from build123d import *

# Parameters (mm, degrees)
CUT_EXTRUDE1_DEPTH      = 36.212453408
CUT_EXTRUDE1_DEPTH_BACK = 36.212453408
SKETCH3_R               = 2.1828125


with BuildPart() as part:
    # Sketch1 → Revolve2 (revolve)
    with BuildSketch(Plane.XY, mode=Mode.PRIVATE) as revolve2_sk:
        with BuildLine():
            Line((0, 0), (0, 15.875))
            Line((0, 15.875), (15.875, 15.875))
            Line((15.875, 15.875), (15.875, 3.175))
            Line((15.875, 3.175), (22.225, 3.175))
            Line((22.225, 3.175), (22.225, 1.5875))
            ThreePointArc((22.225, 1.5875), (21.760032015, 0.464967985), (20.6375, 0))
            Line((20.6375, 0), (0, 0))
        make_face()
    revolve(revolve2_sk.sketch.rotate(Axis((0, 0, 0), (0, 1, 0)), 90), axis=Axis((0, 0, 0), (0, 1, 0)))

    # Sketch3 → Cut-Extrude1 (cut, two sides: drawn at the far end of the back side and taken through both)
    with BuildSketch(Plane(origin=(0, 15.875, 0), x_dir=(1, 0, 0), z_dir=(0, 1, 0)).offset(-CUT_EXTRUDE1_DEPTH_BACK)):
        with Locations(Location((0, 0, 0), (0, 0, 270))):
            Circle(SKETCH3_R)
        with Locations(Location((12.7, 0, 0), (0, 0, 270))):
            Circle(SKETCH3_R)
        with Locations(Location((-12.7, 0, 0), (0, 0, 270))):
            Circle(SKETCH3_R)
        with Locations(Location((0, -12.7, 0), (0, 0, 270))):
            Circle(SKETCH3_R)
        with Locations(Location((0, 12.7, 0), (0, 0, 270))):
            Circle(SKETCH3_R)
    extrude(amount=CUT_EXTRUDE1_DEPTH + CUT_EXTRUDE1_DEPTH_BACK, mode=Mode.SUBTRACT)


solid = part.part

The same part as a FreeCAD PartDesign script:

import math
import FreeCAD as App
import Part
import Sketcher
Q = App.Units.Quantity

doc = App.newDocument("Part")
body = doc.addObject("PartDesign::Body", "Body")

sketch1 = body.newObject("Sketcher::SketchObject", "Sketch")
sketch1.AttachmentSupport = (doc.getObject("XY_Plane"), [""])
sketch1.MapMode = "FlatFace"
sketch1.addGeometry(Part.LineSegment(App.Vector(0, 15.9, 0), App.Vector(0, 0, 0)), False)
sketch1.addGeometry(Part.LineSegment(App.Vector(0, 0, 0), App.Vector(20.6, 0, 0)), False)
sketch1.addGeometry(Part.ArcOfCircle(Part.Circle(App.Vector(20.6, 1.6, 0), App.Vector(0, 0, 1), 1.6), math.radians(-90), math.radians(0)), False)
sketch1.addGeometry(Part.LineSegment(App.Vector(22.2, 1.6, 0), App.Vector(22.2, 3.2, 0)), False)
sketch1.addGeometry(Part.LineSegment(App.Vector(22.2, 3.2, 0), App.Vector(15.9, 3.2, 0)), False)
sketch1.addGeometry(Part.LineSegment(App.Vector(15.9, 3.2, 0), App.Vector(15.9, 15.9, 0)), False)
sketch1.addGeometry(Part.LineSegment(App.Vector(15.9, 15.9, 0), App.Vector(0, 15.9, 0)), False)
sketch1.addConstraint(Sketcher.Constraint("Coincident", 0, 2, 1, 1))
sketch1.addConstraint(Sketcher.Constraint("Tangent", 1, 2, 2, 1))
sketch1.addConstraint(Sketcher.Constraint("Tangent", 2, 2, 3, 1))
sketch1.addConstraint(Sketcher.Constraint("Coincident", 3, 2, 4, 1))
sketch1.addConstraint(Sketcher.Constraint("Coincident", 4, 2, 5, 1))
sketch1.addConstraint(Sketcher.Constraint("Coincident", 5, 2, 6, 1))
sketch1.addConstraint(Sketcher.Constraint("Coincident", 6, 2, 0, 1))
sketch1.addConstraint(Sketcher.Constraint("Vertical", 0))
sketch1.addConstraint(Sketcher.Constraint("Horizontal", 1))
sketch1.addConstraint(Sketcher.Constraint("Vertical", 3))
sketch1.addConstraint(Sketcher.Constraint("Horizontal", 4))
sketch1.addConstraint(Sketcher.Constraint("Vertical", 5))
sketch1.addConstraint(Sketcher.Constraint("Horizontal", 6))
sketch1.addConstraint(Sketcher.Constraint("Coincident", 0, 2, -1, 1))
sketch1.addConstraint(Sketcher.Constraint("Equal", 6, 0))
sketch1.addConstraint(Sketcher.Constraint("DistanceY", 5, 1, 5, 2, Q("0.5 in")))
sketch1.addConstraint(Sketcher.Constraint("Radius", 2, Q("0.0625 in")))
sketch1.addConstraint(Sketcher.Constraint("DistanceX", 4, 2, 4, 1, Q("0.25 in")))
sketch1.addConstraint(Sketcher.Constraint("DistanceX", 1, 1, 1, 2, Q("0.8125 in")))
revolution = body.newObject("PartDesign::Revolution", "Revolution")
revolution.Profile = sketch1
revolution.ReferenceAxis = (sketch1, ["V_Axis"])
revolution.Angle = 360

sketch2 = body.newObject("Sketcher::SketchObject", "Sketch001")
sketch2.AttachmentSupport = (doc.getObject("XZ_Plane"), [""])
sketch2.MapMode = "FlatFace"
sketch2.AttachmentOffset = App.Placement(App.Vector(0, 0, -0.625 * 25.4), App.Rotation())
sketch2.addGeometry(Part.Circle(App.Vector(0, 0, 0), App.Vector(0, 0, 1), 2.2), False)
sketch2.addGeometry(Part.Circle(App.Vector(12.7, 0, 0), App.Vector(0, 0, 1), 2.2), False)
sketch2.addGeometry(Part.Circle(App.Vector(-12.7, 0, 0), App.Vector(0, 0, 1), 2.2), False)
sketch2.addGeometry(Part.Circle(App.Vector(0, 12.7, 0), App.Vector(0, 0, 1), 2.2), False)
sketch2.addGeometry(Part.Circle(App.Vector(0, -12.7, 0), App.Vector(0, 0, 1), 2.2), False)
sketch2.addConstraint(Sketcher.Constraint("Coincident", 0, 3, -1, 1))
sketch2.addConstraint(Sketcher.Constraint("Equal", 0, 1))
sketch2.addConstraint(Sketcher.Constraint("Equal", 1, 2))
sketch2.addConstraint(Sketcher.Constraint("Equal", 2, 3))
sketch2.addConstraint(Sketcher.Constraint("Equal", 3, 4))
sketch2.addConstraint(Sketcher.Constraint("Symmetric", 1, 3, 2, 3, -1, 1))
sketch2.addConstraint(Sketcher.Constraint("Symmetric", 3, 3, 4, 3, -1, 1))
sketch2.addConstraint(Sketcher.Constraint("PointOnObject", 1, 3, -1))
sketch2.addConstraint(Sketcher.Constraint("PointOnObject", 3, 3, -2))
sketch2.addConstraint(Sketcher.Constraint("Diameter", 0, Q("0.171875 in")))
sketch2.addConstraint(Sketcher.Constraint("DistanceX", 2, 3, 1, 3, Q("1 in")))
sketch2.addConstraint(Sketcher.Constraint("DistanceY", 4, 3, 3, 3, Q("1 in")))
pocket1 = body.newObject("PartDesign::Pocket", "Pocket")
pocket1.Profile = sketch2
pocket1.Type = "ThroughAll"
pocket1.Midplane = True

doc.recompute()
